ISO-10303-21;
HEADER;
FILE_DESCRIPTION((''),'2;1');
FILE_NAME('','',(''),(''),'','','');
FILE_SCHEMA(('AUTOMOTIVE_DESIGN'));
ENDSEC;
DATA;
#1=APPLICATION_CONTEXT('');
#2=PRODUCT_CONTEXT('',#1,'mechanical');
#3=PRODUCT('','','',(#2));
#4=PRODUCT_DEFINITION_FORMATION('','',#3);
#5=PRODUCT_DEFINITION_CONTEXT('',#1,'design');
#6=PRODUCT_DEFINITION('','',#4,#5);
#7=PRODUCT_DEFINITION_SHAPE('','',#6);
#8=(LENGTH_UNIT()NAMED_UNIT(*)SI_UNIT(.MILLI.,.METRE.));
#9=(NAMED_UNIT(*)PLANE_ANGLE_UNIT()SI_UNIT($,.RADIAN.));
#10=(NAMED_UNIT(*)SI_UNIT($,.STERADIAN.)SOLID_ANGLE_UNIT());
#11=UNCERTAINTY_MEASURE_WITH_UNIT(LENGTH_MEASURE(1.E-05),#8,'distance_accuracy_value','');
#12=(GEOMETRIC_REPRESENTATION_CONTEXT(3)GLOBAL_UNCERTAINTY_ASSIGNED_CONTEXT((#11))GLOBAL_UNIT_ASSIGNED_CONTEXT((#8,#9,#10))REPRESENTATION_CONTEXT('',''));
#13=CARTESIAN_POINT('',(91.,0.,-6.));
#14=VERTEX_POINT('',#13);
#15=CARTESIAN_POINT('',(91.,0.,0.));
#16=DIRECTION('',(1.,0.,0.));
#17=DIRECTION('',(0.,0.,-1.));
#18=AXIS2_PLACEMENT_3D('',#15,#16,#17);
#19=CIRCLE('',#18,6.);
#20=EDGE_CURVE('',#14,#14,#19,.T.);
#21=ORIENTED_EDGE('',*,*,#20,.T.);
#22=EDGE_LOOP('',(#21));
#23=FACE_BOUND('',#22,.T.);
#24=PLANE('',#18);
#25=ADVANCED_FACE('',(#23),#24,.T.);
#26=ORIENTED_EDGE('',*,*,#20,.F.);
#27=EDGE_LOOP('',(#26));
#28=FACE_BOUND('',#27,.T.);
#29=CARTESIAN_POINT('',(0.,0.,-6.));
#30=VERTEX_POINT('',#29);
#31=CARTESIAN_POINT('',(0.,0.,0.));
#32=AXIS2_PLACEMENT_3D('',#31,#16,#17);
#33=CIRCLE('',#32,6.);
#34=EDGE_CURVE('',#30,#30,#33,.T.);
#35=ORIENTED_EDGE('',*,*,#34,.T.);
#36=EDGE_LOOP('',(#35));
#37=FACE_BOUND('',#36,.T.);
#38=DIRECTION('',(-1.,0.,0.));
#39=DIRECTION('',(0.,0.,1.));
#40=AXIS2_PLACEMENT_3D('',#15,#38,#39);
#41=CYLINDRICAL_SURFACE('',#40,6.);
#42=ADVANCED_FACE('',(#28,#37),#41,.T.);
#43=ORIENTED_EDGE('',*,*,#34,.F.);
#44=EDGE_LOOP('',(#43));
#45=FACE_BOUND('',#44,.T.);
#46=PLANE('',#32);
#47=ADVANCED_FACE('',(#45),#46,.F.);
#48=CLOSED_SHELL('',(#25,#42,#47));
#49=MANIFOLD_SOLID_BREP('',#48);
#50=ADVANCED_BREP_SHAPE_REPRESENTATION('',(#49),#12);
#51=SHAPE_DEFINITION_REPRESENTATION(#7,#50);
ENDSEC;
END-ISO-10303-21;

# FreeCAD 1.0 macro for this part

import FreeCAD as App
import Part
import Sketcher
Q = App.Units.Quantity

doc = App.newDocument("Part")
body = doc.addObject("PartDesign::Body", "Body")

# Sketch on YZ plane
sketch1 = body.newObject("Sketcher::SketchObject", "Sketch")
sketch1.AttachmentSupport = (doc.getObject("YZ_Plane"), [""])
sketch1.MapMode = "FlatFace"
sketch1.addGeometry(Part.Circle(App.Vector(0, 0, 0), App.Vector(0, 0, 1), 6), False)
sketch1.addConstraint([
    Sketcher.Constraint("Coincident", 0, 3, -1, 1),
    Sketcher.Constraint("Diameter", 0, Q("12 mm")),
])
pad1 = body.newObject("PartDesign::Pad", "Pad")
pad1.Profile = sketch1
pad1.Length = 91

doc.recompute()
